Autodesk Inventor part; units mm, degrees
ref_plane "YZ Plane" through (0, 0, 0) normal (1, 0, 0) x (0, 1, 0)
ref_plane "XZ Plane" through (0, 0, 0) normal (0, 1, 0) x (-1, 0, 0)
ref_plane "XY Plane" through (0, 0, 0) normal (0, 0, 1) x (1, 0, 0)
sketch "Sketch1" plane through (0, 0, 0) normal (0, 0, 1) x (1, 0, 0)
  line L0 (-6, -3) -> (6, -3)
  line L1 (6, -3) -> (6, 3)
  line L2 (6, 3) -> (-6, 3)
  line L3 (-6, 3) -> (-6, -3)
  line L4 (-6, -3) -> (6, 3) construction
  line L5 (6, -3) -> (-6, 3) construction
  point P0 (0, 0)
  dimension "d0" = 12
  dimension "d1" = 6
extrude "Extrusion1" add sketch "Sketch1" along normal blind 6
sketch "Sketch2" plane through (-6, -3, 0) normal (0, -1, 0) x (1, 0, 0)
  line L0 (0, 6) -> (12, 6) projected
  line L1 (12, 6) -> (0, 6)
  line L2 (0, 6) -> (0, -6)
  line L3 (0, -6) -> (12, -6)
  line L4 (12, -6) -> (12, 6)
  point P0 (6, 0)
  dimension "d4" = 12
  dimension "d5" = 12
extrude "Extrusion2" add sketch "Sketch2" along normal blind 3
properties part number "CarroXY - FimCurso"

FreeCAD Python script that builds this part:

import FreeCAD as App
import Part
import Sketcher

V = App.Vector
Q = App.Units.Quantity


def add_polygon(sketch, points):
    """Adds a closed chain of lines whose ends are joined by coincident constraints."""
    first, n = sketch.GeometryCount, len(points)
    for a, b in zip(points, points[1:] + points[:1]):
        sketch.addGeometry(Part.LineSegment(App.Vector(*a, 0), App.Vector(*b, 0)), False)
    for i in range(n):
        sketch.addConstraint(Sketcher.Constraint("Coincident", first + i, 2, first + (i + 1) % n, 1))

doc = App.newDocument("Part")
body = doc.addObject("PartDesign::Body", "Body")

# Sketch on XY plane
sketch1 = doc.addObject("Sketcher::SketchObject", "Sketch")
body.addObject(sketch1)
sketch1.AttachmentSupport = (doc.XY_Plane, [""])
sketch1.MapMode = "FlatFace"
add_polygon(sketch1, [(-6, 3), (-6, -3), (6, -3), (6, 3)])  # lines 0-3
sketch1.addConstraint(Sketcher.Constraint("Vertical", 0))
sketch1.addConstraint(Sketcher.Constraint("Horizontal", 1))
sketch1.addConstraint(Sketcher.Constraint("Vertical", 2))
sketch1.addConstraint(Sketcher.Constraint("Horizontal", 3))
sketch1.addConstraint(Sketcher.Constraint("Symmetric", 0, 2, 2, 2, -1, 1))
sketch1.addConstraint(Sketcher.Constraint("DistanceX", 1, 1, 1, 2, Q("12 mm")))
sketch1.addConstraint(Sketcher.Constraint("DistanceY", 0, 2, 0, 1, Q("6 mm")))
pad1 = doc.addObject("PartDesign::Pad", "Pad")
body.addObject(pad1)
pad1.Profile = sketch1
pad1.Length = 6

# Sketch on XZ plane
sketch2 = doc.addObject("Sketcher::SketchObject", "Sketch001")
body.addObject(sketch2)
sketch2.AttachmentSupport = (doc.XZ_Plane, [""])
sketch2.MapMode = "FlatFace"
sketch2.AttachmentOffset = App.Placement(V(0, 0, 3), App.Rotation())
add_polygon(sketch2, [(6, 6), (-6, 6), (-6, -6), (6, -6)])  # lines 0-3
sketch2.addConstraint(Sketcher.Constraint("Horizontal", 0))
sketch2.addConstraint(Sketcher.Constraint("Vertical", 1))
sketch2.addConstraint(Sketcher.Constraint("Horizontal", 2))
sketch2.addConstraint(Sketcher.Constraint("Vertical", 3))
sketch2.addConstraint(Sketcher.Constraint("Symmetric", 0, 2, 2, 2, -1, 1))
sketch2.addConstraint(Sketcher.Constraint("Equal", 2, 1))
sketch2.addConstraint(Sketcher.Constraint("DistanceX", 0, 2, 0, 1, Q("12 mm")))
pad2 = doc.addObject("PartDesign::Pad", "Pad001")
body.addObject(pad2)
pad2.Profile = sketch2
pad2.Length = 3

doc.recompute()
